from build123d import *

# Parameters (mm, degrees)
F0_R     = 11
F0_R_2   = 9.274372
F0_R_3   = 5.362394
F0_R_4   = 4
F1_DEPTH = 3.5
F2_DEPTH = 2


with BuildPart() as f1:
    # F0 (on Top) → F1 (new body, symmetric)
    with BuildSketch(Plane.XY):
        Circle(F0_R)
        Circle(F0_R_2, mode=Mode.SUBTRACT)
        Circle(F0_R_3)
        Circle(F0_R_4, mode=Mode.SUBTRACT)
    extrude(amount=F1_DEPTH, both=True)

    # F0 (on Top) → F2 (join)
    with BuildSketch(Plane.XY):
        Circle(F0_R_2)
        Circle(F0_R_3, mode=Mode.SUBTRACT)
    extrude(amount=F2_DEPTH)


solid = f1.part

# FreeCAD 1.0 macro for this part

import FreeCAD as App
import Part
import Sketcher
Q = App.Units.Quantity

doc = App.newDocument("Part")
body = doc.addObject("PartDesign::Body", "Body")
body.AllowCompound = True

# Sketch on XY plane
sketch1 = doc.addObject("Sketcher::SketchObject", "Sketch")
body.addObject(sketch1)
sketch1.AttachmentSupport = (doc.XY_Plane, [""])
sketch1.MapMode = "FlatFace"
sketch1.addGeometry([
    Part.Circle(App.Vector(0, 0, 0), App.Vector(0, 0, 1), 11),
    Part.Circle(App.Vector(0, 0, 0), App.Vector(0, 0, 1), 9.3),
    Part.Circle(App.Vector(0, 0, 0), App.Vector(0, 0, 1), 5.4),
    Part.Circle(App.Vector(0, 0, 0), App.Vector(0, 0, 1), 4),
], False)
sketch1.addConstraint([
    Sketcher.Constraint("Coincident", 0, 3, -1, 1),
    Sketcher.Constraint("Coincident", 1, 3, -1, 1),
    Sketcher.Constraint("Coincident", 2, 3, -1, 1),
    Sketcher.Constraint("Coincident", 3, 3, -1, 1),
    Sketcher.Constraint("Diameter", 0, Q("22 mm")),
    Sketcher.Constraint("Diameter", 3, Q("8 mm")),
    Sketcher.Constraint("Diameter", 1, Q("18.548744 mm")),
    Sketcher.Constraint("Diameter", 2, Q("10.724788 mm")),
])
pad1 = doc.addObject("PartDesign::Pad", "Pad")
body.addObject(pad1)
pad1.Profile = sketch1
pad1.Length = 7
pad1.Midplane = True

# Sketch on XY plane
sketch2 = doc.addObject("Sketcher::SketchObject", "Sketch001")
body.addObject(sketch2)
sketch2.AttachmentSupport = (doc.XY_Plane, [""])
sketch2.MapMode = "FlatFace"
sketch2.addGeometry([
    Part.Circle(App.Vector(0, 0, 0), App.Vector(0, 0, 1), 9),
    Part.Circle(App.Vector(0, 0, 0), App.Vector(0, 0, 1), 5),
], False)
sketch2.addConstraint([
    Sketcher.Constraint("Coincident", 0, 3, -1, 1),
    Sketcher.Constraint("Coincident", 1, 3, -1, 1),
    Sketcher.Constraint("Diameter", 0, Q("18.548744 mm")),
    Sketcher.Constraint("Diameter", 1, Q("10.724788 mm")),
])
pad2 = doc.addObject("PartDesign::Pad", "Pad001")
body.addObject(pad2)
pad2.Profile = sketch2
pad2.Length = 2

doc.recompute()
